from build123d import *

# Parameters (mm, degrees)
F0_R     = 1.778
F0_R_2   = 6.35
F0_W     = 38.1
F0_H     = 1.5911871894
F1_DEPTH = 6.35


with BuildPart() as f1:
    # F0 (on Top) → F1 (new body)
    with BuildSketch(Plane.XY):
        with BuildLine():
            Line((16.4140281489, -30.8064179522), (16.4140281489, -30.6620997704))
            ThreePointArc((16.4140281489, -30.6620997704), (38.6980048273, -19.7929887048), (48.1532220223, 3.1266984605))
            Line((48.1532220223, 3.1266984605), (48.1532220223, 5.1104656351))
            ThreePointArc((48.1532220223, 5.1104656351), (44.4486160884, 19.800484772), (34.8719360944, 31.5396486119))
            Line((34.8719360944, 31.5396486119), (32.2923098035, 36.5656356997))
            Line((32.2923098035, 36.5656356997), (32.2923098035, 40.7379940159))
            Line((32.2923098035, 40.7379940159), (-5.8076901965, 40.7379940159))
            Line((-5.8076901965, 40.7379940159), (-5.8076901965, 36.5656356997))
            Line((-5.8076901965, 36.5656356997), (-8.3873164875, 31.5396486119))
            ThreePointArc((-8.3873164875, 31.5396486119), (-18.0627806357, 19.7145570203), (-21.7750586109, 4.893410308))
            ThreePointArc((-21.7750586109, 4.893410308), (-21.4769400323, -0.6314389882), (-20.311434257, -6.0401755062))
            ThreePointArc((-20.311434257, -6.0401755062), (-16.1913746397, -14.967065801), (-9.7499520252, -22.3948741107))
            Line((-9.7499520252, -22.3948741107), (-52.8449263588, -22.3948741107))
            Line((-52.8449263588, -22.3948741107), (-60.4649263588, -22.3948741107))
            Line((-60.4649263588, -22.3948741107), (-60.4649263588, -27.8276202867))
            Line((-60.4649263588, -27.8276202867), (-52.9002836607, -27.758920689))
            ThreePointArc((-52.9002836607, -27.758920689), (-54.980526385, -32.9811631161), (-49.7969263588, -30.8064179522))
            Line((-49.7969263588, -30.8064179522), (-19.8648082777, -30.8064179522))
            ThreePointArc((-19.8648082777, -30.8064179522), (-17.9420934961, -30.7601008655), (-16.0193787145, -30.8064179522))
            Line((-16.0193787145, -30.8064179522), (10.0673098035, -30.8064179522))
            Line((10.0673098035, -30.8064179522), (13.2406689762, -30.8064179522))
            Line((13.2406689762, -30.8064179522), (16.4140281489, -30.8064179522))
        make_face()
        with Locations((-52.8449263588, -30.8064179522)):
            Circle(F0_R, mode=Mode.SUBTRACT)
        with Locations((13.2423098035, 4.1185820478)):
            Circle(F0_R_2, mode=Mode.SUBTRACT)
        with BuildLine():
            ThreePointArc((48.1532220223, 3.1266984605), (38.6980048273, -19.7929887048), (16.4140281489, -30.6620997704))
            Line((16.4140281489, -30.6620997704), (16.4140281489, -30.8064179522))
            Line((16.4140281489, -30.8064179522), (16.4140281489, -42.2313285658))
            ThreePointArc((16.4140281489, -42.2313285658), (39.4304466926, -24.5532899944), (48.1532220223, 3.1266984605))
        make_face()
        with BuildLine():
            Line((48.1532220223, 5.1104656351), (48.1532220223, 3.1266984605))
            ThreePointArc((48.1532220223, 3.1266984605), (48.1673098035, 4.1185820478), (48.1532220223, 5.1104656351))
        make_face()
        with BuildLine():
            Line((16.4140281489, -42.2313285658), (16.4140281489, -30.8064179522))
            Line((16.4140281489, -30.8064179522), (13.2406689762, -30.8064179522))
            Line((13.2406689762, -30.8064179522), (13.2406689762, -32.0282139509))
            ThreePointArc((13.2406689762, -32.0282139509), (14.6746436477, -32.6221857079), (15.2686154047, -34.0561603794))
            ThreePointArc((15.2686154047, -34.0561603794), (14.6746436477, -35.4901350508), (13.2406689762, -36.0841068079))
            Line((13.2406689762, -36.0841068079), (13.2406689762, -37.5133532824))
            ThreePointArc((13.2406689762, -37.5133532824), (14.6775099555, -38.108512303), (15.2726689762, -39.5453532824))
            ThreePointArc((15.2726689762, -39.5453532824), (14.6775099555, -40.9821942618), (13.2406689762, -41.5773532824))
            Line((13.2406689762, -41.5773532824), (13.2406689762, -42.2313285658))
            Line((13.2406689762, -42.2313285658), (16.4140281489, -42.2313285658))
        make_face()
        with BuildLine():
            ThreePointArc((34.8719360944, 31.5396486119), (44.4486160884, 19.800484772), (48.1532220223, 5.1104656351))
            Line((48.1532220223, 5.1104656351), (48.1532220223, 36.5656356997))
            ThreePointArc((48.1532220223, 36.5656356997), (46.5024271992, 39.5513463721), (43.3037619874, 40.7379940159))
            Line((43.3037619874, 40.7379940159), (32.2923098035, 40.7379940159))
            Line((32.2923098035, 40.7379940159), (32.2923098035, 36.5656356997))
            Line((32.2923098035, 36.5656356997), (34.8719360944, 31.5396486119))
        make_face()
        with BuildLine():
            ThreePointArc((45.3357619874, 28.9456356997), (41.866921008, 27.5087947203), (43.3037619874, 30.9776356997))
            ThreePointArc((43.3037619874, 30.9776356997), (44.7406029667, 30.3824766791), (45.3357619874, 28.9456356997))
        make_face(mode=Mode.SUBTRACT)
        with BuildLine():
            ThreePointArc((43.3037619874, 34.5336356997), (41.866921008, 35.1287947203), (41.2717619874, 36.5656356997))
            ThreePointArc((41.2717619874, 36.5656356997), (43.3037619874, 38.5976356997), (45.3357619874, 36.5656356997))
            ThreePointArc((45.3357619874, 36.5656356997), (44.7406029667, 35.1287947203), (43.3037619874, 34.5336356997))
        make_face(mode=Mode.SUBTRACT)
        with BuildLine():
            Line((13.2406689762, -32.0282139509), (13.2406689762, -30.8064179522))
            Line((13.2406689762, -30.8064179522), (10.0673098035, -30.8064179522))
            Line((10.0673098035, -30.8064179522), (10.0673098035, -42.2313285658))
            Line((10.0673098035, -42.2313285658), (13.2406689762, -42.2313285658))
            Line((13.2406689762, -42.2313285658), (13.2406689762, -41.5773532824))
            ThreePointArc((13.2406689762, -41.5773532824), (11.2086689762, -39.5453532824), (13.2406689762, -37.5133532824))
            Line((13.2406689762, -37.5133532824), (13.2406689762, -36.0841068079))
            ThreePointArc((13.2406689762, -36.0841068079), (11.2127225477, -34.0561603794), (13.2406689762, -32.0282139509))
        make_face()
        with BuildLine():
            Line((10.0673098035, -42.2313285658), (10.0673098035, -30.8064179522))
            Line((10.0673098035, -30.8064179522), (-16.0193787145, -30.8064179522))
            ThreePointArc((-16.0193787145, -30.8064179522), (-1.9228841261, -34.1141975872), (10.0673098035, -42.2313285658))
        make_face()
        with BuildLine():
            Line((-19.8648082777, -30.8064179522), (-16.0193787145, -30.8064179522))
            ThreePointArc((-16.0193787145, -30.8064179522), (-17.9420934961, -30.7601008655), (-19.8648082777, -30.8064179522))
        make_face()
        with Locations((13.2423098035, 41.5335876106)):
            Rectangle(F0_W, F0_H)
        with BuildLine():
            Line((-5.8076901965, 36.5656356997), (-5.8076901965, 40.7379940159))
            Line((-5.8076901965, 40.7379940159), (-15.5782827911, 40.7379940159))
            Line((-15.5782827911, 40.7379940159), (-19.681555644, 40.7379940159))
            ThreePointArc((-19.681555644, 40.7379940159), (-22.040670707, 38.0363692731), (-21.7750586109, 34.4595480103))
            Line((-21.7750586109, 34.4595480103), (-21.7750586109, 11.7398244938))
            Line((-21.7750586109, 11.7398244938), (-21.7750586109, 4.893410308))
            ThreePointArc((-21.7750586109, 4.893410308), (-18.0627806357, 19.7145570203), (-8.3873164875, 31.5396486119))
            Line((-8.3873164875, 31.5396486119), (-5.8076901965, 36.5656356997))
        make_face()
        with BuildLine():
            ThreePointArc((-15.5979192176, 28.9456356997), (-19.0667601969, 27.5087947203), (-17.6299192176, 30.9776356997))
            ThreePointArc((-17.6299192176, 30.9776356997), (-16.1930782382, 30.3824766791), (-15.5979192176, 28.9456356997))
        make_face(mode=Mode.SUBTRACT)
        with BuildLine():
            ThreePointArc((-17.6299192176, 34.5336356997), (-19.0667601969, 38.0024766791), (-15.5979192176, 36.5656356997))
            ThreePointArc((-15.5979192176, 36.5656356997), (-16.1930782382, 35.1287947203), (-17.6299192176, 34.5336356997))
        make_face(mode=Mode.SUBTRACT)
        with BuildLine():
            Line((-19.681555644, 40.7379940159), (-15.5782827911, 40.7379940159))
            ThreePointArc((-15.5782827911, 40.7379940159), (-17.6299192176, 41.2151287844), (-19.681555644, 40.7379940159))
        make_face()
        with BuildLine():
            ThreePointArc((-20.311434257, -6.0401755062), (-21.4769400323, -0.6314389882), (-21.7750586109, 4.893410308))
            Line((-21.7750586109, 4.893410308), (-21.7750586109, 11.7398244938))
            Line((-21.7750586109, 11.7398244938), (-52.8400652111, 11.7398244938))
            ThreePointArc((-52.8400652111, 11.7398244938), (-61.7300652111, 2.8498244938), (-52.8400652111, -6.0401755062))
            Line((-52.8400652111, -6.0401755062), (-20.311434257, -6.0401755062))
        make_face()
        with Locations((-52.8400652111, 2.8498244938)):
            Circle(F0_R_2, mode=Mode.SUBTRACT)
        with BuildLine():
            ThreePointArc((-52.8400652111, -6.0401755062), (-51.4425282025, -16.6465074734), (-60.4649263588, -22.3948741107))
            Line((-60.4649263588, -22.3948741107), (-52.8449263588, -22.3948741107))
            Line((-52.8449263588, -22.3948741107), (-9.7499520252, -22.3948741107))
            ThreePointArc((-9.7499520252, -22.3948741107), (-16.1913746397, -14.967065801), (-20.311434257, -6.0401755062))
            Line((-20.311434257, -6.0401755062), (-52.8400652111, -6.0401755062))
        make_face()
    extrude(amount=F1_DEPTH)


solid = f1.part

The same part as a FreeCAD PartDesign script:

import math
import FreeCAD as App
import Part
import Sketcher
Q = App.Units.Quantity

doc = App.newDocument("Part")
body = doc.addObject("PartDesign::Body", "Body")

sketch1 = body.newObject("Sketcher::SketchObject", "Sketch")
sketch1.AttachmentSupport = (doc.getObject("XY_Plane"), [""])
sketch1.MapMode = "FlatFace"
sketch1.addGeometry([
    Part.LineSegment(App.Vector(10.1, -42.2, 0), App.Vector(16.4, -42.2, 0)),
    Part.ArcOfCircle(Part.Circle(App.Vector(-0.1, 3.1, 0), App.Vector(0, 0, 1), 48.3), math.radians(-70), math.radians(0)),
    Part.ArcOfCircle(Part.Circle(App.Vector(13.2, 4.1, 0), App.Vector(0, 0, 1), 34.9), math.radians(-1.63), math.radians(1.63)),
    Part.LineSegment(App.Vector(48.2, 5.1, 0), App.Vector(48.2, 36.6, 0)),
    Part.ArcOfCircle(Part.Circle(App.Vector(43.3, 35.8, 0), App.Vector(0, 0, 1), 4.9), math.radians(9), math.radians(90)),
    Part.LineSegment(App.Vector(43.3, 40.7, 0), App.Vector(32.3, 40.7, 0)),
    Part.LineSegment(App.Vector(32.3, 40.7, 0), App.Vector(32.3, 42.3, 0)),
    Part.LineSegment(App.Vector(32.3, 42.3, 0), App.Vector(-5.8, 42.3, 0)),
    Part.LineSegment(App.Vector(-5.8, 42.3, 0), App.Vector(-5.8, 40.7, 0)),
    Part.LineSegment(App.Vector(-5.8, 40.7, 0), App.Vector(-15.6, 40.7, 0)),
    Part.ArcOfCircle(Part.Circle(App.Vector(-17.6, 36.6, 0), App.Vector(0, 0, 1), 4.6), math.radians(64), math.radians(116)),
    Part.ArcOfCircle(Part.Circle(App.Vector(-17.6, 36.6, 0), App.Vector(0, 0, 1), 4.6), math.radians(116), math.radians(207)),
    Part.LineSegment(App.Vector(-21.8, 34.5, 0), App.Vector(-21.8, 11.7, 0)),
    Part.LineSegment(App.Vector(-21.8, 11.7, 0), App.Vector(-52.8, 11.7, 0)),
    Part.ArcOfCircle(Part.Circle(App.Vector(-52.8, 2.8, 0), App.Vector(0, 0, 1), 8.9), math.radians(90), math.radians(270)),
    Part.ArcOfCircle(Part.Circle(App.Vector(-60.5, -12.4, 0), App.Vector(0, 0, 1), 10), math.radians(-90), math.radians(40)),
    Part.LineSegment(App.Vector(-60.5, -22.4, 0), App.Vector(-60.5, -27.8, 0)),
    Part.LineSegment(App.Vector(-60.5, -27.8, 0), App.Vector(-52.9, -27.8, 0)),
    Part.ArcOfCircle(Part.Circle(App.Vector(-52.8, -30.8, 0), App.Vector(0, 0, 1), 3), math.radians(91), math.radians(360)),
    Part.LineSegment(App.Vector(-49.8, -30.8, 0), App.Vector(-16, -30.8, 0)),
    Part.ArcOfCircle(Part.Circle(App.Vector(-17.9, -70.7, 0), App.Vector(0, 0, 1), 39.9), math.radians(45), math.radians(87)),
    Part.Circle(App.Vector(-52.8, -30.8, 0), App.Vector(0, 0, 1), 1.8),
    Part.ArcOfCircle(Part.Circle(App.Vector(13.2, -39.5, 0), App.Vector(0, 0, 1), 2), math.radians(0), math.radians(90)),
    Part.ArcOfCircle(Part.Circle(App.Vector(13.2, -39.5, 0), App.Vector(0, 0, 1), 2), math.radians(-90), math.radians(0)),
    Part.ArcOfCircle(Part.Circle(App.Vector(13.2, -39.5, 0), App.Vector(0, 0, 1), 2), math.radians(90), math.radians(270)),
    Part.ArcOfCircle(Part.Circle(App.Vector(13.2, -34.1, 0), App.Vector(0, 0, 1), 2), math.radians(0), math.radians(90)),
    Part.ArcOfCircle(Part.Circle(App.Vector(13.2, -34.1, 0), App.Vector(0, 0, 1), 2), math.radians(-90), math.radians(0)),
    Part.ArcOfCircle(Part.Circle(App.Vector(13.2, -34.1, 0), App.Vector(0, 0, 1), 2), math.radians(90), math.radians(270)),
    Part.Circle(App.Vector(-52.8, 2.8, 0), App.Vector(0, 0, 1), 6.3),
    Part.ArcOfCircle(Part.Circle(App.Vector(-17.6, 28.9, 0), App.Vector(0, 0, 1), 2), math.radians(0), math.radians(90)),
    Part.ArcOfCircle(Part.Circle(App.Vector(-17.6, 28.9, 0), App.Vector(0, 0, 1), 2), math.radians(90), math.radians(360)),
    Part.ArcOfCircle(Part.Circle(App.Vector(-17.6, 36.6, 0), App.Vector(0, 0, 1), 2), math.radians(-90), math.radians(0)),
    Part.ArcOfCircle(Part.Circle(App.Vector(-17.6, 36.6, 0), App.Vector(0, 0, 1), 2), math.radians(0), math.radians(270)),
    Part.Circle(App.Vector(13.2, 4.1, 0), App.Vector(0, 0, 1), 6.3),
    Part.ArcOfCircle(Part.Circle(App.Vector(43.3, 28.9, 0), App.Vector(0, 0, 1), 2), math.radians(0), math.radians(90)),
    Part.ArcOfCircle(Part.Circle(App.Vector(43.3, 28.9, 0), App.Vector(0, 0, 1), 2), math.radians(90), math.radians(360)),
    Part.ArcOfCircle(Part.Circle(App.Vector(43.3, 36.6, 0), App.Vector(0, 0, 1), 2), math.radians(-90), math.radians(0)),
    Part.ArcOfCircle(Part.Circle(App.Vector(43.3, 36.6, 0), App.Vector(0, 0, 1), 2), math.radians(180), math.radians(270)),
    Part.ArcOfCircle(Part.Circle(App.Vector(43.3, 36.6, 0), App.Vector(0, 0, 1), 2), math.radians(0), math.radians(180)),
], False)
sketch1.addConstraint([
    Sketcher.Constraint("Coincident", 0, 2, 1, 1),
    Sketcher.Constraint("Coincident", 1, 2, 2, 1),
    Sketcher.Constraint("Coincident", 2, 2, 3, 1),
    Sketcher.Constraint("Coincident", 3, 2, 4, 1),
    Sketcher.Constraint("Tangent", 4, 2, 5, 1),
    Sketcher.Constraint("Coincident", 5, 2, 6, 1),
    Sketcher.Constraint("Coincident", 6, 2, 7, 1),
    Sketcher.Constraint("Coincident", 7, 2, 8, 1),
    Sketcher.Constraint("Coincident", 8, 2, 9, 1),
    Sketcher.Constraint("Coincident", 9, 2, 10, 1),
    Sketcher.Constraint("Tangent", 10, 2, 11, 1),
    Sketcher.Constraint("Coincident", 11, 2, 12, 1),
    Sketcher.Constraint("Coincident", 12, 2, 13, 1),
    Sketcher.Constraint("Tangent", 13, 2, 14, 1),
    Sketcher.Constraint("Coincident", 14, 2, 15, 2),
    Sketcher.Constraint("Coincident", 15, 1, 16, 1),
    Sketcher.Constraint("Coincident", 16, 2, 17, 1),
    Sketcher.Constraint("Coincident", 17, 2, 18, 1),
    Sketcher.Constraint("Coincident", 18, 2, 19, 1),
    Sketcher.Constraint("Coincident", 19, 2, 20, 2),
    Sketcher.Constraint("Coincident", 20, 1, 0, 1),
    Sketcher.Constraint("Tangent", 22, 1, 23, 2),
    Sketcher.Constraint("Tangent", 23, 1, 24, 2),
    Sketcher.Constraint("Tangent", 24, 1, 22, 2),
    Sketcher.Constraint("Tangent", 25, 1, 26, 2),
    Sketcher.Constraint("Tangent", 26, 1, 27, 2),
    Sketcher.Constraint("Tangent", 27, 1, 25, 2),
    Sketcher.Constraint("Tangent", 29, 1, 30, 2),
    Sketcher.Constraint("Coincident", 30, 1, 29, 2),
    Sketcher.Constraint("Tangent", 31, 1, 32, 2),
    Sketcher.Constraint("Coincident", 32, 1, 31, 2),
    Sketcher.Constraint("Tangent", 34, 1, 35, 2),
    Sketcher.Constraint("Coincident", 35, 1, 34, 2),
    Sketcher.Constraint("Tangent", 36, 1, 37, 2),
    Sketcher.Constraint("Tangent", 37, 1, 38, 2),
    Sketcher.Constraint("Tangent", 38, 1, 36, 2),
    Sketcher.Constraint("Horizontal", 0),
    Sketcher.Constraint("Vertical", 3),
    Sketcher.Constraint("Horizontal", 5),
    Sketcher.Constraint("Vertical", 6),
    Sketcher.Constraint("Horizontal", 7),
    Sketcher.Constraint("Vertical", 8),
    Sketcher.Constraint("Horizontal", 9),
    Sketcher.Constraint("Vertical", 12),
    Sketcher.Constraint("Horizontal", 13),
    Sketcher.Constraint("Vertical", 16),
    Sketcher.Constraint("Horizontal", 19),
    Sketcher.Constraint("Coincident", 21, 3, 18, 3),
    Sketcher.Constraint("Coincident", 28, 3, 14, 3),
    Sketcher.Constraint("Coincident", 31, 3, 10, 3),
    Sketcher.Constraint("Coincident", 33, 3, 2, 3),
    Sketcher.Constraint("Equal", 10, 11),
    Sketcher.Constraint("Equal", 24, 29),
    Sketcher.Constraint("Equal", 30, 31),
    Sketcher.Constraint("Equal", 28, 33),
    Sketcher.Constraint("Equal", 32, 34),
    Sketcher.Constraint("Equal", 35, 36),
    Sketcher.Constraint("Horizontal", 30, 3, 34, 3),
    Sketcher.Constraint("Horizontal", 32, 3, 36, 3),
    Sketcher.Constraint("Horizontal", 38, 3, 3, 2),
    Sketcher.Constraint("Horizontal", 5, 2, 8, 2),
    Sketcher.Constraint("Horizontal", 9, 2, 10, 2),
    Sketcher.Constraint("Horizontal", 21, 3, 18, 2),
    Sketcher.Constraint("Horizontal", 24, 3, 22, 1),
    Sketcher.Constraint("Horizontal", 27, 3, 25, 1),
    Sketcher.Constraint("Horizontal", 35, 3, 29, 1),
    Sketcher.Constraint("Horizontal", 3, 2, 32, 1),
    Sketcher.Constraint("Horizontal", 29, 1, 34, 1),
    Sketcher.Constraint("Horizontal", 32, 1, 37, 1),
    Sketcher.Constraint("Horizontal", 37, 1, 38, 1),
    Sketcher.Constraint("Vertical", 24, 3, 25, 3),
    Sketcher.Constraint("Vertical", 11, 3, 29, 3),
    Sketcher.Constraint("Vertical", 4, 3, 34, 3),
    Sketcher.Constraint("Vertical", 35, 3, 36, 3),
    Sketcher.Constraint("Vertical", 1, 2, 2, 2),
    Sketcher.Constraint("Vertical", 13, 2, 14, 2),
    Sketcher.Constraint("Vertical", 27, 3, 23, 1),
    Sketcher.Constraint("Vertical", 23, 1, 24, 1),
    Sketcher.Constraint("Vertical", 24, 1, 26, 1),
    Sketcher.Constraint("Vertical", 26, 1, 27, 1),
    Sketcher.Constraint("Vertical", 32, 3, 30, 1),
    Sketcher.Constraint("Vertical", 30, 1, 31, 1),
    Sketcher.Constraint("Vertical", 4, 2, 35, 1),
    Sketcher.Constraint("Vertical", 35, 1, 36, 1),
    Sketcher.Constraint("Diameter", 28, Q("0.5 in")),
    Sketcher.Constraint("Diameter", 21, Q("0.14 in")),
    Sketcher.Constraint("Radius", 14, Q("0.35 in")),
    Sketcher.Constraint("Radius", 18, Q("0.12 in")),
    Sketcher.Constraint("Radius", 22, Q("0.08 in")),
    Sketcher.Constraint("DistanceX", 7, 2, 7, 1, Q("1.5 in")),
    Sketcher.Constraint("Radius", 2, Q("1.375 in")),
    Sketcher.Constraint("Radius", 4, 4.904401),
    Sketcher.Constraint("Radius", 1, 48.27985),
    Sketcher.Constraint("Radius", 10, 4.649493),
    Sketcher.Constraint("Radius", 15, 9.954775),
    Sketcher.Constraint("Radius", 20, 39.931024),
    Sketcher.Constraint("Radius", 25, 2.027946),
    Sketcher.Constraint("DistanceX", 0, 1, 0, 2, 6.346718),
    Sketcher.Constraint("DistanceY", 3, 1, 3, 2, 31.45517),
    Sketcher.Constraint("DistanceY", -1, 1, 1, 3, 3.126698),
    Sketcher.Constraint("DistanceY", 15, 3, -1, 1, 12.4401),
    Sketcher.Constraint("DistanceY", -1, 1, 1, 2, 3.126698),
    Sketcher.Constraint("DistanceX", 5, 2, 5, 1, 11.011452),
    Sketcher.Constraint("DistanceX", 9, 2, 9, 1, 9.770593),
    Sketcher.Constraint("DistanceX", 13, 2, 13, 1, 31.065007),
    Sketcher.Constraint("DistanceX", 19, 1, 19, 2, 33.777548),
    Sketcher.Constraint("DistanceY", 6, 1, 6, 2, 1.591187),
    Sketcher.Constraint("DistanceY", 12, 2, 12, 1, 22.719724),
    Sketcher.Constraint("DistanceY", 16, 2, 16, 1, 5.432746),
    Sketcher.Constraint("DistanceX", 1, 3, -1, 1, 0.126628),
    Sketcher.Constraint("DistanceX", -1, 1, 2, 3, 13.24231),
    Sketcher.Constraint("DistanceX", -1, 1, 4, 3, 43.303762),
    Sketcher.Constraint("DistanceX", -1, 1, 22, 3, 13.240669),
    Sketcher.Constraint("DistanceY", 25, 3, -1, 1, 34.05616),
    Sketcher.Constraint("DistanceX", -1, 1, 0, 2, 16.414028),
    Sketcher.Constraint("DistanceX", 11, 2, -1, 1, 21.775059),
    Sketcher.Constraint("DistanceY", 17, 2, -1, 1, 27.758921),
    Sketcher.Constraint("DistanceX", 19, 2, -1, 1, 16.019379),
    Sketcher.Constraint("Distance", 17, 7.564955),
    Sketcher.Constraint("DistanceY", 18, 3, -1, 1, 30.806418),
    Sketcher.Constraint("DistanceY", 22, 3, -1, 1, 39.545353),
    Sketcher.Constraint("DistanceY", -1, 1, 29, 3, 28.945636),
])
pad1 = body.newObject("PartDesign::Pad", "Pad")
pad1.Profile = sketch1
pad1.Length = Q("0.25 in")

doc.recompute()
